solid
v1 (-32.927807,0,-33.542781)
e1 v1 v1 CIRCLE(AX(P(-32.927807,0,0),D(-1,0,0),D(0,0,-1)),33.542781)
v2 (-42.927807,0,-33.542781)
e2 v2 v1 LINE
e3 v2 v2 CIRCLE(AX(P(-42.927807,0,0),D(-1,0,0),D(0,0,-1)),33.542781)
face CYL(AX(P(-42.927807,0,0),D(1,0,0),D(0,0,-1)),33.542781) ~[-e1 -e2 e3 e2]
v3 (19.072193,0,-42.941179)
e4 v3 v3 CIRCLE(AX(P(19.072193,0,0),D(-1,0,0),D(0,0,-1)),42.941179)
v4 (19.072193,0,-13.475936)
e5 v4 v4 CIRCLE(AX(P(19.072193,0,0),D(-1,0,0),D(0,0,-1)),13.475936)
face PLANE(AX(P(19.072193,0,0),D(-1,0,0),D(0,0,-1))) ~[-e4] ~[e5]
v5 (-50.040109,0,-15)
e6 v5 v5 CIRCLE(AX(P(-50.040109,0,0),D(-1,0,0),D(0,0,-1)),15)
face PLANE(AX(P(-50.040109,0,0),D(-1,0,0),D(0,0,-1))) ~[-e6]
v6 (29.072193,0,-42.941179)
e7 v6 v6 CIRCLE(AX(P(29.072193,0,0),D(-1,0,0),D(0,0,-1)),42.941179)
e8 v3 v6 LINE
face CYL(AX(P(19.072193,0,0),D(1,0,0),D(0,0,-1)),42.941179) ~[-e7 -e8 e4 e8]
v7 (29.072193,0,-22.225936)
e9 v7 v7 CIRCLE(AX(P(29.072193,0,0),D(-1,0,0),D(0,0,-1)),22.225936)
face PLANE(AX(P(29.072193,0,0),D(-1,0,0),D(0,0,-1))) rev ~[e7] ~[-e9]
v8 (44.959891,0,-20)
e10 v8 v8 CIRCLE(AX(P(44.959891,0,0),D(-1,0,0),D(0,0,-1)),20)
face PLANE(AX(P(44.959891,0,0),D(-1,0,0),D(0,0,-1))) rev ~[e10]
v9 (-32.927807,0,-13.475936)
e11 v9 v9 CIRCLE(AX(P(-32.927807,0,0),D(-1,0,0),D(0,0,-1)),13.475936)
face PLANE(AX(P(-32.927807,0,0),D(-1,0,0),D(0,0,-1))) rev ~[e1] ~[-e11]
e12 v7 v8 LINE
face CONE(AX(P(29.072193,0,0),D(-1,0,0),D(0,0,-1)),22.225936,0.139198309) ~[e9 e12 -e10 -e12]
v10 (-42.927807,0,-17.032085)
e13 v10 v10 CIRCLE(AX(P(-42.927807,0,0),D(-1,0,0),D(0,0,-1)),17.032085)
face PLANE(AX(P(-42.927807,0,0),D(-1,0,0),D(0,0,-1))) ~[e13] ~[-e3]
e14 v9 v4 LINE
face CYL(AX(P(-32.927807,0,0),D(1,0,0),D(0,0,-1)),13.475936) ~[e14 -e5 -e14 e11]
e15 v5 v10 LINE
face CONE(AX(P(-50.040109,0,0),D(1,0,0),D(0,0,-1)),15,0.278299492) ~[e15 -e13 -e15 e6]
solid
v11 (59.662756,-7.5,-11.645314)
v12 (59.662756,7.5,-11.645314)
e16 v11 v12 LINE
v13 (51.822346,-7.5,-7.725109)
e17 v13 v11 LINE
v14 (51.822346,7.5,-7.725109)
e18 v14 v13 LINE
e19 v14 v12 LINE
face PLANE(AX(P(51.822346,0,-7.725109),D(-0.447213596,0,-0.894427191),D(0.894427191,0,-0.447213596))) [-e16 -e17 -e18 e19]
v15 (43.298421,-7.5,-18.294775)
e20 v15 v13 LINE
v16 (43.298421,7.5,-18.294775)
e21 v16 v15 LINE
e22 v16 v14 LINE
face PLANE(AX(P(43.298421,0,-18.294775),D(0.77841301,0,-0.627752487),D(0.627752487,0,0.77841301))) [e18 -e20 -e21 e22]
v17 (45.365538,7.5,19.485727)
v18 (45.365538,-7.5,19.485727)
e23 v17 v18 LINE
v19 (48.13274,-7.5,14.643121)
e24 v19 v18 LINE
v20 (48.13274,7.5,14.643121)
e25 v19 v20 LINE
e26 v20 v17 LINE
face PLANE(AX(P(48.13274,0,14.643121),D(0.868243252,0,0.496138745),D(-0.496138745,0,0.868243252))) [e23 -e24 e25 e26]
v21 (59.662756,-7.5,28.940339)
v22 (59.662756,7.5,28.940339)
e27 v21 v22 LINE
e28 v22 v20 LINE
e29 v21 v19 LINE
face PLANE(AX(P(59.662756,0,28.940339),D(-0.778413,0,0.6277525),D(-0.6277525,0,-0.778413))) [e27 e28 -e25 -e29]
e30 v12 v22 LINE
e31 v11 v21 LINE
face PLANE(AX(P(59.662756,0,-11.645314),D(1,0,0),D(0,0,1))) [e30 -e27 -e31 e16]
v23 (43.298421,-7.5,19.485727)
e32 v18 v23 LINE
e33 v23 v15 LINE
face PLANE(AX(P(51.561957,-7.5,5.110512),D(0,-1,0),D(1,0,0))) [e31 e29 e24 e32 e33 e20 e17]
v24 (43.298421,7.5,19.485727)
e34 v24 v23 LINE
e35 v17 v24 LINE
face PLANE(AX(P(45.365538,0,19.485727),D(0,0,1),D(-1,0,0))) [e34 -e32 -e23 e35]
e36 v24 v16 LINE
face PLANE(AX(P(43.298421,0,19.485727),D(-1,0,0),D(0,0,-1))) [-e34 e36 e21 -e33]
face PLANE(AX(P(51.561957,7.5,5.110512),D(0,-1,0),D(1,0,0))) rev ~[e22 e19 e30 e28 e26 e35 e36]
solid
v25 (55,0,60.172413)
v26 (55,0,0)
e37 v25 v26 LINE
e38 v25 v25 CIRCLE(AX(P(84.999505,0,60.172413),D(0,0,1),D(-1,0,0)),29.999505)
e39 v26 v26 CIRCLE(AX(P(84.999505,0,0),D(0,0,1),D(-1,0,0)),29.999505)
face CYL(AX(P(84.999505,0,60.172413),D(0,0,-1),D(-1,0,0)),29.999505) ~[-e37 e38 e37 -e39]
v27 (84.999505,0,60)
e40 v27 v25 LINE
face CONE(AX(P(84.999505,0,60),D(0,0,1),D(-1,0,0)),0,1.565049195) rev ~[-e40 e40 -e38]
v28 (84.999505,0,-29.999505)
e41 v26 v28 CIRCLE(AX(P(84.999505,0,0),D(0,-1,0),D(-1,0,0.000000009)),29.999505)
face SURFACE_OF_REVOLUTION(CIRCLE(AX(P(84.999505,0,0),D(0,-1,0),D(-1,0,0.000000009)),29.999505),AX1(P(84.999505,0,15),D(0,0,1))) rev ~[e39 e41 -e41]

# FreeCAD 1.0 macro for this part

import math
import FreeCAD as App
import Part
import Sketcher

V = App.Vector
Q = App.Units.Quantity

doc = App.newDocument("Part")
params = doc.addObject("Spreadsheet::Sheet", "Params")
for row, (alias, value) in enumerate([
    ("sketch1_width", "95 mm"),
    ("sketch1_width2", "10 mm"),
    ("sketch1_width3", "52 mm"),
    ("sketch1_height", "15 mm"),
    ("sketch1_height2", "20 mm"),
    ("revolution_angle", "360 deg"),
    ("sketch2_length", "30 mm"),
    ("revolution2_angle", "360 deg"),
    ("pad1_length", "15 mm"),
], start=1):
    params.set(f"A{row}", alias)
    params.set(f"B{row}", "=" + value)
    params.setAlias(f"B{row}", alias)

body = doc.addObject("PartDesign::Body", "Body")

# Sketch on XZ plane
sketch1 = body.newObject("Sketcher::SketchObject", "Sketch")
sketch1.AttachmentSupport = (doc.getObject("XZ_Plane"), [""])
sketch1.MapMode = "FlatFace"
sketch1.addGeometry(Part.LineSegment(V(45, 0, 0), V(-50, 0, 0)), False)
sketch1.addGeometry(Part.LineSegment(V(-50, 0, 0), V(-50, -15, 0)), False)
sketch1.addGeometry(Part.LineSegment(V(-50, -15, 0), V(-43, -17, 0)), False)
sketch1.addGeometry(Part.LineSegment(V(-43, -17, 0), V(-43, -34, 0)), False)
sketch1.addGeometry(Part.LineSegment(V(-43, -34, 0), V(-33, -34, 0)), False)
sketch1.addGeometry(Part.LineSegment(V(-33, -34, 0), V(-33, -13, 0)), False)
sketch1.addGeometry(Part.LineSegment(V(-33, -13, 0), V(19, -13, 0)), False)
sketch1.addGeometry(Part.LineSegment(V(19, -13, 0), V(19, -43, 0)), False)
sketch1.addGeometry(Part.LineSegment(V(19, -43, 0), V(29, -43, 0)), False)
sketch1.addGeometry(Part.LineSegment(V(29, -43, 0), V(29, -22, 0)), False)
sketch1.addGeometry(Part.LineSegment(V(29, -22, 0), V(45, -20, 0)), False)
sketch1.addGeometry(Part.LineSegment(V(45, -20, 0), V(45, 0, 0)), False)
sketch1.addConstraint(Sketcher.Constraint("Coincident", 0, 2, 1, 1))
sketch1.addConstraint(Sketcher.Constraint("Coincident", 1, 2, 2, 1))
sketch1.addConstraint(Sketcher.Constraint("Coincident", 2, 2, 3, 1))
sketch1.addConstraint(Sketcher.Constraint("Coincident", 3, 2, 4, 1))
sketch1.addConstraint(Sketcher.Constraint("Coincident", 4, 2, 5, 1))
sketch1.addConstraint(Sketcher.Constraint("Coincident", 5, 2, 6, 1))
sketch1.addConstraint(Sketcher.Constraint("Coincident", 6, 2, 7, 1))
sketch1.addConstraint(Sketcher.Constraint("Coincident", 7, 2, 8, 1))
sketch1.addConstraint(Sketcher.Constraint("Coincident", 8, 2, 9, 1))
sketch1.addConstraint(Sketcher.Constraint("Coincident", 9, 2, 10, 1))
sketch1.addConstraint(Sketcher.Constraint("Coincident", 10, 2, 11, 1))
sketch1.addConstraint(Sketcher.Constraint("Coincident", 11, 2, 0, 1))
sketch1.addConstraint(Sketcher.Constraint("Horizontal", 0))
sketch1.addConstraint(Sketcher.Constraint("Vertical", 1))
sketch1.addConstraint(Sketcher.Constraint("Vertical", 3))
sketch1.addConstraint(Sketcher.Constraint("Horizontal", 4))
sketch1.addConstraint(Sketcher.Constraint("Vertical", 5))
sketch1.addConstraint(Sketcher.Constraint("Horizontal", 6))
sketch1.addConstraint(Sketcher.Constraint("Vertical", 7))
sketch1.addConstraint(Sketcher.Constraint("Horizontal", 8))
sketch1.addConstraint(Sketcher.Constraint("Vertical", 9))
sketch1.addConstraint(Sketcher.Constraint("Vertical", 11))
sketch1.addConstraint(Sketcher.Constraint("PointOnObject", 0, 2, -1))
sketch1.addConstraint(Sketcher.Constraint("Equal", 4, 8))
sketch1.addConstraint(Sketcher.Constraint("DistanceX", 0, 2, 0, 1, Q("95 mm")))
sketch1.addConstraint(Sketcher.Constraint("DistanceX", 4, 1, 4, 2, Q("10 mm")))
sketch1.addConstraint(Sketcher.Constraint("DistanceX", 6, 1, 6, 2, Q("52 mm")))
sketch1.addConstraint(Sketcher.Constraint("DistanceY", 1, 2, 1, 1, Q("15 mm")))
sketch1.addConstraint(Sketcher.Constraint("DistanceY", 11, 1, 11, 2, Q("20 mm")))
sketch1.addConstraint(Sketcher.Constraint("DistanceY", 9, 2, 6, 2, Q("8.75 mm")))
sketch1.addConstraint(Sketcher.Constraint("DistanceX", 1, 2, 2, 2, Q("7.112302 mm")))
sketch1.addConstraint(Sketcher.Constraint("Distance", 10, Q("16.042872 mm")))
sketch1.addConstraint(Sketcher.Constraint("DistanceY", 3, 2, 3, 1, Q("16.510696 mm")))
sketch1.addConstraint(Sketcher.Constraint("DistanceY", 5, 1, 5, 2, Q("20.066845 mm")))
sketch1.addConstraint(Sketcher.Constraint("DistanceY", 7, 2, 7, 1, Q("29.465243 mm")))
sketch1.addConstraint(Sketcher.Constraint("DistanceX", 0, 2, -1, 1, Q("50.040109 mm")))
sketch1.setExpression("Constraints[24]", "Params.sketch1_width")
sketch1.setExpression("Constraints[25]", "Params.sketch1_width2")
sketch1.setExpression("Constraints[26]", "Params.sketch1_width3")
sketch1.setExpression("Constraints[27]", "Params.sketch1_height")
sketch1.setExpression("Constraints[28]", "Params.sketch1_height2")
revolution = body.newObject("PartDesign::Revolution", "Revolution")
revolution.Profile = sketch1
revolution.ReferenceAxis = (sketch1, ["H_Axis"])
revolution.setExpression("Angle", "Params.revolution_angle")
body2 = doc.addObject("PartDesign::Body", "Body001")

# Sketch on XZ plane
sketch2 = body2.newObject("Sketcher::SketchObject", "Sketch001")
sketch2.AttachmentSupport = (doc.getObject("XZ_Plane001"), [""])
sketch2.MapMode = "FlatFace"
sketch2.addGeometry(Part.LineSegment(V(85, 60, 0), V(55, 60, 0)), False)
sketch2.addGeometry(Part.LineSegment(V(55, 60, 0), V(55, 0, 0)), False)
sketch2.addGeometry(Part.ArcOfCircle(Part.Circle(V(85, 0, 0), V(0, 0, 1), 30), math.radians(180), math.radians(270)), False)
sketch2.addGeometry(Part.LineSegment(V(85, -30, 0), V(85, 60, 0)), False)
sketch2.addGeometry(Part.LineSegment(V(85, -30, 0), V(85, 60, 0)), True)  # axis
sketch2.addConstraint(Sketcher.Constraint("Coincident", 0, 2, 1, 1))
sketch2.addConstraint(Sketcher.Constraint("Tangent", 1, 2, 2, 1))
sketch2.addConstraint(Sketcher.Constraint("Coincident", 2, 2, 3, 1))
sketch2.addConstraint(Sketcher.Constraint("Coincident", 3, 2, 0, 1))
sketch2.addConstraint(Sketcher.Constraint("Vertical", 1))
sketch2.addConstraint(Sketcher.Constraint("Vertical", 3))
sketch2.addConstraint(Sketcher.Constraint("Vertical", 4))
sketch2.addConstraint(Sketcher.Constraint("Coincident", 4, 1, 2, 2))
sketch2.addConstraint(Sketcher.Constraint("PointOnObject", 2, 3, -1))
sketch2.addConstraint(Sketcher.Constraint("Horizontal", 0, 2, 4, 2))
sketch2.addConstraint(Sketcher.Constraint("Distance", 0, Q("30 mm")))
sketch2.addConstraint(Sketcher.Constraint("DistanceX", -1, 1, 0, 2, Q("55 mm")))
sketch2.addConstraint(Sketcher.Constraint("DistanceY", -1, 1, 3, 2, Q("60 mm")))
sketch2.addConstraint(Sketcher.Constraint("Radius", 2, Q("29.999505 mm")))
sketch2.addConstraint(Sketcher.Constraint("DistanceY", 4, 1, 4, 2, Q("90.171918 mm")))
sketch2.setExpression("Constraints[10]", "Params.sketch2_length")
revolution2 = body2.newObject("PartDesign::Revolution", "Revolution001")
revolution2.Profile = sketch2
revolution2.ReferenceAxis = (sketch2, ["Axis0"])
revolution2.setExpression("Angle", "Params.revolution2_angle")
body3 = doc.addObject("PartDesign::Body", "Body002")

# Sketch on XZ plane
sketch3 = body3.newObject("Sketcher::SketchObject", "Sketch002")
sketch3.AttachmentSupport = (doc.getObject("XZ_Plane002"), [""])
sketch3.MapMode = "FlatFace"
sketch3.addGeometry(Part.LineSegment(V(48.1, 14.6, 0), V(45.4, 19.5, 0)), False)
sketch3.addGeometry(Part.LineSegment(V(45.4, 19.5, 0), V(43.3, 19.5, 0)), False)
sketch3.addGeometry(Part.LineSegment(V(43.3, 19.5, 0), V(43.3, -18.3, 0)), False)
sketch3.addGeometry(Part.LineSegment(V(43.3, -18.3, 0), V(51.8, -7.7, 0)), False)
sketch3.addGeometry(Part.LineSegment(V(51.8, -7.7, 0), V(59.7, -11.6, 0)), False)
sketch3.addGeometry(Part.LineSegment(V(59.7, -11.6, 0), V(59.7, 28.9, 0)), False)
sketch3.addGeometry(Part.LineSegment(V(59.7, 28.9, 0), V(48.1, 14.6, 0)), False)
sketch3.addConstraint(Sketcher.Constraint("Coincident", 0, 2, 1, 1))
sketch3.addConstraint(Sketcher.Constraint("Coincident", 1, 2, 2, 1))
sketch3.addConstraint(Sketcher.Constraint("Coincident", 2, 2, 3, 1))
sketch3.addConstraint(Sketcher.Constraint("Coincident", 3, 2, 4, 1))
sketch3.addConstraint(Sketcher.Constraint("Coincident", 4, 2, 5, 1))
sketch3.addConstraint(Sketcher.Constraint("Coincident", 5, 2, 6, 1))
sketch3.addConstraint(Sketcher.Constraint("Coincident", 6, 2, 0, 1))
sketch3.addConstraint(Sketcher.Constraint("Horizontal", 1))
sketch3.addConstraint(Sketcher.Constraint("Vertical", 2))
sketch3.addConstraint(Sketcher.Constraint("Vertical", 5))
sketch3.addConstraint(Sketcher.Constraint("Parallel", 3, 6))
sketch3.addConstraint(Sketcher.Constraint("DistanceY", 2, 2, 2, 1, Q("37.780502 mm")))
sketch3.addConstraint(Sketcher.Constraint("DistanceX", 0, 2, 6, 2, Q("2.767202 mm")))
sketch3.addConstraint(Sketcher.Constraint("Distance", 3, Q("13.578481 mm")))
sketch3.addConstraint(Sketcher.Constraint("DistanceX", 1, 2, 1, 1, Q("2.067117 mm")))
sketch3.addConstraint(Sketcher.Constraint("DistanceY", 5, 1, 5, 2, Q("40.585653 mm")))
sketch3.addConstraint(Sketcher.Constraint("DistanceX", -1, 1, 1, 2, Q("43.298421 mm")))
sketch3.addConstraint(Sketcher.Constraint("DistanceY", 3, 2, -1, 1, Q("7.725109 mm")))
sketch3.addConstraint(Sketcher.Constraint("DistanceY", -1, 1, 5, 2, Q("28.940339 mm")))
sketch3.addConstraint(Sketcher.Constraint("DistanceY", -1, 1, 6, 2, Q("14.643121 mm")))
sketch3.addConstraint(Sketcher.Constraint("DistanceX", 0, 2, 3, 2, Q("6.456808 mm")))
pad1 = body3.newObject("PartDesign::Pad", "Pad")
pad1.Profile = sketch3
pad1.setExpression("Length", "Params.pad1_length")
pad1.Midplane = True

doc.recompute()
